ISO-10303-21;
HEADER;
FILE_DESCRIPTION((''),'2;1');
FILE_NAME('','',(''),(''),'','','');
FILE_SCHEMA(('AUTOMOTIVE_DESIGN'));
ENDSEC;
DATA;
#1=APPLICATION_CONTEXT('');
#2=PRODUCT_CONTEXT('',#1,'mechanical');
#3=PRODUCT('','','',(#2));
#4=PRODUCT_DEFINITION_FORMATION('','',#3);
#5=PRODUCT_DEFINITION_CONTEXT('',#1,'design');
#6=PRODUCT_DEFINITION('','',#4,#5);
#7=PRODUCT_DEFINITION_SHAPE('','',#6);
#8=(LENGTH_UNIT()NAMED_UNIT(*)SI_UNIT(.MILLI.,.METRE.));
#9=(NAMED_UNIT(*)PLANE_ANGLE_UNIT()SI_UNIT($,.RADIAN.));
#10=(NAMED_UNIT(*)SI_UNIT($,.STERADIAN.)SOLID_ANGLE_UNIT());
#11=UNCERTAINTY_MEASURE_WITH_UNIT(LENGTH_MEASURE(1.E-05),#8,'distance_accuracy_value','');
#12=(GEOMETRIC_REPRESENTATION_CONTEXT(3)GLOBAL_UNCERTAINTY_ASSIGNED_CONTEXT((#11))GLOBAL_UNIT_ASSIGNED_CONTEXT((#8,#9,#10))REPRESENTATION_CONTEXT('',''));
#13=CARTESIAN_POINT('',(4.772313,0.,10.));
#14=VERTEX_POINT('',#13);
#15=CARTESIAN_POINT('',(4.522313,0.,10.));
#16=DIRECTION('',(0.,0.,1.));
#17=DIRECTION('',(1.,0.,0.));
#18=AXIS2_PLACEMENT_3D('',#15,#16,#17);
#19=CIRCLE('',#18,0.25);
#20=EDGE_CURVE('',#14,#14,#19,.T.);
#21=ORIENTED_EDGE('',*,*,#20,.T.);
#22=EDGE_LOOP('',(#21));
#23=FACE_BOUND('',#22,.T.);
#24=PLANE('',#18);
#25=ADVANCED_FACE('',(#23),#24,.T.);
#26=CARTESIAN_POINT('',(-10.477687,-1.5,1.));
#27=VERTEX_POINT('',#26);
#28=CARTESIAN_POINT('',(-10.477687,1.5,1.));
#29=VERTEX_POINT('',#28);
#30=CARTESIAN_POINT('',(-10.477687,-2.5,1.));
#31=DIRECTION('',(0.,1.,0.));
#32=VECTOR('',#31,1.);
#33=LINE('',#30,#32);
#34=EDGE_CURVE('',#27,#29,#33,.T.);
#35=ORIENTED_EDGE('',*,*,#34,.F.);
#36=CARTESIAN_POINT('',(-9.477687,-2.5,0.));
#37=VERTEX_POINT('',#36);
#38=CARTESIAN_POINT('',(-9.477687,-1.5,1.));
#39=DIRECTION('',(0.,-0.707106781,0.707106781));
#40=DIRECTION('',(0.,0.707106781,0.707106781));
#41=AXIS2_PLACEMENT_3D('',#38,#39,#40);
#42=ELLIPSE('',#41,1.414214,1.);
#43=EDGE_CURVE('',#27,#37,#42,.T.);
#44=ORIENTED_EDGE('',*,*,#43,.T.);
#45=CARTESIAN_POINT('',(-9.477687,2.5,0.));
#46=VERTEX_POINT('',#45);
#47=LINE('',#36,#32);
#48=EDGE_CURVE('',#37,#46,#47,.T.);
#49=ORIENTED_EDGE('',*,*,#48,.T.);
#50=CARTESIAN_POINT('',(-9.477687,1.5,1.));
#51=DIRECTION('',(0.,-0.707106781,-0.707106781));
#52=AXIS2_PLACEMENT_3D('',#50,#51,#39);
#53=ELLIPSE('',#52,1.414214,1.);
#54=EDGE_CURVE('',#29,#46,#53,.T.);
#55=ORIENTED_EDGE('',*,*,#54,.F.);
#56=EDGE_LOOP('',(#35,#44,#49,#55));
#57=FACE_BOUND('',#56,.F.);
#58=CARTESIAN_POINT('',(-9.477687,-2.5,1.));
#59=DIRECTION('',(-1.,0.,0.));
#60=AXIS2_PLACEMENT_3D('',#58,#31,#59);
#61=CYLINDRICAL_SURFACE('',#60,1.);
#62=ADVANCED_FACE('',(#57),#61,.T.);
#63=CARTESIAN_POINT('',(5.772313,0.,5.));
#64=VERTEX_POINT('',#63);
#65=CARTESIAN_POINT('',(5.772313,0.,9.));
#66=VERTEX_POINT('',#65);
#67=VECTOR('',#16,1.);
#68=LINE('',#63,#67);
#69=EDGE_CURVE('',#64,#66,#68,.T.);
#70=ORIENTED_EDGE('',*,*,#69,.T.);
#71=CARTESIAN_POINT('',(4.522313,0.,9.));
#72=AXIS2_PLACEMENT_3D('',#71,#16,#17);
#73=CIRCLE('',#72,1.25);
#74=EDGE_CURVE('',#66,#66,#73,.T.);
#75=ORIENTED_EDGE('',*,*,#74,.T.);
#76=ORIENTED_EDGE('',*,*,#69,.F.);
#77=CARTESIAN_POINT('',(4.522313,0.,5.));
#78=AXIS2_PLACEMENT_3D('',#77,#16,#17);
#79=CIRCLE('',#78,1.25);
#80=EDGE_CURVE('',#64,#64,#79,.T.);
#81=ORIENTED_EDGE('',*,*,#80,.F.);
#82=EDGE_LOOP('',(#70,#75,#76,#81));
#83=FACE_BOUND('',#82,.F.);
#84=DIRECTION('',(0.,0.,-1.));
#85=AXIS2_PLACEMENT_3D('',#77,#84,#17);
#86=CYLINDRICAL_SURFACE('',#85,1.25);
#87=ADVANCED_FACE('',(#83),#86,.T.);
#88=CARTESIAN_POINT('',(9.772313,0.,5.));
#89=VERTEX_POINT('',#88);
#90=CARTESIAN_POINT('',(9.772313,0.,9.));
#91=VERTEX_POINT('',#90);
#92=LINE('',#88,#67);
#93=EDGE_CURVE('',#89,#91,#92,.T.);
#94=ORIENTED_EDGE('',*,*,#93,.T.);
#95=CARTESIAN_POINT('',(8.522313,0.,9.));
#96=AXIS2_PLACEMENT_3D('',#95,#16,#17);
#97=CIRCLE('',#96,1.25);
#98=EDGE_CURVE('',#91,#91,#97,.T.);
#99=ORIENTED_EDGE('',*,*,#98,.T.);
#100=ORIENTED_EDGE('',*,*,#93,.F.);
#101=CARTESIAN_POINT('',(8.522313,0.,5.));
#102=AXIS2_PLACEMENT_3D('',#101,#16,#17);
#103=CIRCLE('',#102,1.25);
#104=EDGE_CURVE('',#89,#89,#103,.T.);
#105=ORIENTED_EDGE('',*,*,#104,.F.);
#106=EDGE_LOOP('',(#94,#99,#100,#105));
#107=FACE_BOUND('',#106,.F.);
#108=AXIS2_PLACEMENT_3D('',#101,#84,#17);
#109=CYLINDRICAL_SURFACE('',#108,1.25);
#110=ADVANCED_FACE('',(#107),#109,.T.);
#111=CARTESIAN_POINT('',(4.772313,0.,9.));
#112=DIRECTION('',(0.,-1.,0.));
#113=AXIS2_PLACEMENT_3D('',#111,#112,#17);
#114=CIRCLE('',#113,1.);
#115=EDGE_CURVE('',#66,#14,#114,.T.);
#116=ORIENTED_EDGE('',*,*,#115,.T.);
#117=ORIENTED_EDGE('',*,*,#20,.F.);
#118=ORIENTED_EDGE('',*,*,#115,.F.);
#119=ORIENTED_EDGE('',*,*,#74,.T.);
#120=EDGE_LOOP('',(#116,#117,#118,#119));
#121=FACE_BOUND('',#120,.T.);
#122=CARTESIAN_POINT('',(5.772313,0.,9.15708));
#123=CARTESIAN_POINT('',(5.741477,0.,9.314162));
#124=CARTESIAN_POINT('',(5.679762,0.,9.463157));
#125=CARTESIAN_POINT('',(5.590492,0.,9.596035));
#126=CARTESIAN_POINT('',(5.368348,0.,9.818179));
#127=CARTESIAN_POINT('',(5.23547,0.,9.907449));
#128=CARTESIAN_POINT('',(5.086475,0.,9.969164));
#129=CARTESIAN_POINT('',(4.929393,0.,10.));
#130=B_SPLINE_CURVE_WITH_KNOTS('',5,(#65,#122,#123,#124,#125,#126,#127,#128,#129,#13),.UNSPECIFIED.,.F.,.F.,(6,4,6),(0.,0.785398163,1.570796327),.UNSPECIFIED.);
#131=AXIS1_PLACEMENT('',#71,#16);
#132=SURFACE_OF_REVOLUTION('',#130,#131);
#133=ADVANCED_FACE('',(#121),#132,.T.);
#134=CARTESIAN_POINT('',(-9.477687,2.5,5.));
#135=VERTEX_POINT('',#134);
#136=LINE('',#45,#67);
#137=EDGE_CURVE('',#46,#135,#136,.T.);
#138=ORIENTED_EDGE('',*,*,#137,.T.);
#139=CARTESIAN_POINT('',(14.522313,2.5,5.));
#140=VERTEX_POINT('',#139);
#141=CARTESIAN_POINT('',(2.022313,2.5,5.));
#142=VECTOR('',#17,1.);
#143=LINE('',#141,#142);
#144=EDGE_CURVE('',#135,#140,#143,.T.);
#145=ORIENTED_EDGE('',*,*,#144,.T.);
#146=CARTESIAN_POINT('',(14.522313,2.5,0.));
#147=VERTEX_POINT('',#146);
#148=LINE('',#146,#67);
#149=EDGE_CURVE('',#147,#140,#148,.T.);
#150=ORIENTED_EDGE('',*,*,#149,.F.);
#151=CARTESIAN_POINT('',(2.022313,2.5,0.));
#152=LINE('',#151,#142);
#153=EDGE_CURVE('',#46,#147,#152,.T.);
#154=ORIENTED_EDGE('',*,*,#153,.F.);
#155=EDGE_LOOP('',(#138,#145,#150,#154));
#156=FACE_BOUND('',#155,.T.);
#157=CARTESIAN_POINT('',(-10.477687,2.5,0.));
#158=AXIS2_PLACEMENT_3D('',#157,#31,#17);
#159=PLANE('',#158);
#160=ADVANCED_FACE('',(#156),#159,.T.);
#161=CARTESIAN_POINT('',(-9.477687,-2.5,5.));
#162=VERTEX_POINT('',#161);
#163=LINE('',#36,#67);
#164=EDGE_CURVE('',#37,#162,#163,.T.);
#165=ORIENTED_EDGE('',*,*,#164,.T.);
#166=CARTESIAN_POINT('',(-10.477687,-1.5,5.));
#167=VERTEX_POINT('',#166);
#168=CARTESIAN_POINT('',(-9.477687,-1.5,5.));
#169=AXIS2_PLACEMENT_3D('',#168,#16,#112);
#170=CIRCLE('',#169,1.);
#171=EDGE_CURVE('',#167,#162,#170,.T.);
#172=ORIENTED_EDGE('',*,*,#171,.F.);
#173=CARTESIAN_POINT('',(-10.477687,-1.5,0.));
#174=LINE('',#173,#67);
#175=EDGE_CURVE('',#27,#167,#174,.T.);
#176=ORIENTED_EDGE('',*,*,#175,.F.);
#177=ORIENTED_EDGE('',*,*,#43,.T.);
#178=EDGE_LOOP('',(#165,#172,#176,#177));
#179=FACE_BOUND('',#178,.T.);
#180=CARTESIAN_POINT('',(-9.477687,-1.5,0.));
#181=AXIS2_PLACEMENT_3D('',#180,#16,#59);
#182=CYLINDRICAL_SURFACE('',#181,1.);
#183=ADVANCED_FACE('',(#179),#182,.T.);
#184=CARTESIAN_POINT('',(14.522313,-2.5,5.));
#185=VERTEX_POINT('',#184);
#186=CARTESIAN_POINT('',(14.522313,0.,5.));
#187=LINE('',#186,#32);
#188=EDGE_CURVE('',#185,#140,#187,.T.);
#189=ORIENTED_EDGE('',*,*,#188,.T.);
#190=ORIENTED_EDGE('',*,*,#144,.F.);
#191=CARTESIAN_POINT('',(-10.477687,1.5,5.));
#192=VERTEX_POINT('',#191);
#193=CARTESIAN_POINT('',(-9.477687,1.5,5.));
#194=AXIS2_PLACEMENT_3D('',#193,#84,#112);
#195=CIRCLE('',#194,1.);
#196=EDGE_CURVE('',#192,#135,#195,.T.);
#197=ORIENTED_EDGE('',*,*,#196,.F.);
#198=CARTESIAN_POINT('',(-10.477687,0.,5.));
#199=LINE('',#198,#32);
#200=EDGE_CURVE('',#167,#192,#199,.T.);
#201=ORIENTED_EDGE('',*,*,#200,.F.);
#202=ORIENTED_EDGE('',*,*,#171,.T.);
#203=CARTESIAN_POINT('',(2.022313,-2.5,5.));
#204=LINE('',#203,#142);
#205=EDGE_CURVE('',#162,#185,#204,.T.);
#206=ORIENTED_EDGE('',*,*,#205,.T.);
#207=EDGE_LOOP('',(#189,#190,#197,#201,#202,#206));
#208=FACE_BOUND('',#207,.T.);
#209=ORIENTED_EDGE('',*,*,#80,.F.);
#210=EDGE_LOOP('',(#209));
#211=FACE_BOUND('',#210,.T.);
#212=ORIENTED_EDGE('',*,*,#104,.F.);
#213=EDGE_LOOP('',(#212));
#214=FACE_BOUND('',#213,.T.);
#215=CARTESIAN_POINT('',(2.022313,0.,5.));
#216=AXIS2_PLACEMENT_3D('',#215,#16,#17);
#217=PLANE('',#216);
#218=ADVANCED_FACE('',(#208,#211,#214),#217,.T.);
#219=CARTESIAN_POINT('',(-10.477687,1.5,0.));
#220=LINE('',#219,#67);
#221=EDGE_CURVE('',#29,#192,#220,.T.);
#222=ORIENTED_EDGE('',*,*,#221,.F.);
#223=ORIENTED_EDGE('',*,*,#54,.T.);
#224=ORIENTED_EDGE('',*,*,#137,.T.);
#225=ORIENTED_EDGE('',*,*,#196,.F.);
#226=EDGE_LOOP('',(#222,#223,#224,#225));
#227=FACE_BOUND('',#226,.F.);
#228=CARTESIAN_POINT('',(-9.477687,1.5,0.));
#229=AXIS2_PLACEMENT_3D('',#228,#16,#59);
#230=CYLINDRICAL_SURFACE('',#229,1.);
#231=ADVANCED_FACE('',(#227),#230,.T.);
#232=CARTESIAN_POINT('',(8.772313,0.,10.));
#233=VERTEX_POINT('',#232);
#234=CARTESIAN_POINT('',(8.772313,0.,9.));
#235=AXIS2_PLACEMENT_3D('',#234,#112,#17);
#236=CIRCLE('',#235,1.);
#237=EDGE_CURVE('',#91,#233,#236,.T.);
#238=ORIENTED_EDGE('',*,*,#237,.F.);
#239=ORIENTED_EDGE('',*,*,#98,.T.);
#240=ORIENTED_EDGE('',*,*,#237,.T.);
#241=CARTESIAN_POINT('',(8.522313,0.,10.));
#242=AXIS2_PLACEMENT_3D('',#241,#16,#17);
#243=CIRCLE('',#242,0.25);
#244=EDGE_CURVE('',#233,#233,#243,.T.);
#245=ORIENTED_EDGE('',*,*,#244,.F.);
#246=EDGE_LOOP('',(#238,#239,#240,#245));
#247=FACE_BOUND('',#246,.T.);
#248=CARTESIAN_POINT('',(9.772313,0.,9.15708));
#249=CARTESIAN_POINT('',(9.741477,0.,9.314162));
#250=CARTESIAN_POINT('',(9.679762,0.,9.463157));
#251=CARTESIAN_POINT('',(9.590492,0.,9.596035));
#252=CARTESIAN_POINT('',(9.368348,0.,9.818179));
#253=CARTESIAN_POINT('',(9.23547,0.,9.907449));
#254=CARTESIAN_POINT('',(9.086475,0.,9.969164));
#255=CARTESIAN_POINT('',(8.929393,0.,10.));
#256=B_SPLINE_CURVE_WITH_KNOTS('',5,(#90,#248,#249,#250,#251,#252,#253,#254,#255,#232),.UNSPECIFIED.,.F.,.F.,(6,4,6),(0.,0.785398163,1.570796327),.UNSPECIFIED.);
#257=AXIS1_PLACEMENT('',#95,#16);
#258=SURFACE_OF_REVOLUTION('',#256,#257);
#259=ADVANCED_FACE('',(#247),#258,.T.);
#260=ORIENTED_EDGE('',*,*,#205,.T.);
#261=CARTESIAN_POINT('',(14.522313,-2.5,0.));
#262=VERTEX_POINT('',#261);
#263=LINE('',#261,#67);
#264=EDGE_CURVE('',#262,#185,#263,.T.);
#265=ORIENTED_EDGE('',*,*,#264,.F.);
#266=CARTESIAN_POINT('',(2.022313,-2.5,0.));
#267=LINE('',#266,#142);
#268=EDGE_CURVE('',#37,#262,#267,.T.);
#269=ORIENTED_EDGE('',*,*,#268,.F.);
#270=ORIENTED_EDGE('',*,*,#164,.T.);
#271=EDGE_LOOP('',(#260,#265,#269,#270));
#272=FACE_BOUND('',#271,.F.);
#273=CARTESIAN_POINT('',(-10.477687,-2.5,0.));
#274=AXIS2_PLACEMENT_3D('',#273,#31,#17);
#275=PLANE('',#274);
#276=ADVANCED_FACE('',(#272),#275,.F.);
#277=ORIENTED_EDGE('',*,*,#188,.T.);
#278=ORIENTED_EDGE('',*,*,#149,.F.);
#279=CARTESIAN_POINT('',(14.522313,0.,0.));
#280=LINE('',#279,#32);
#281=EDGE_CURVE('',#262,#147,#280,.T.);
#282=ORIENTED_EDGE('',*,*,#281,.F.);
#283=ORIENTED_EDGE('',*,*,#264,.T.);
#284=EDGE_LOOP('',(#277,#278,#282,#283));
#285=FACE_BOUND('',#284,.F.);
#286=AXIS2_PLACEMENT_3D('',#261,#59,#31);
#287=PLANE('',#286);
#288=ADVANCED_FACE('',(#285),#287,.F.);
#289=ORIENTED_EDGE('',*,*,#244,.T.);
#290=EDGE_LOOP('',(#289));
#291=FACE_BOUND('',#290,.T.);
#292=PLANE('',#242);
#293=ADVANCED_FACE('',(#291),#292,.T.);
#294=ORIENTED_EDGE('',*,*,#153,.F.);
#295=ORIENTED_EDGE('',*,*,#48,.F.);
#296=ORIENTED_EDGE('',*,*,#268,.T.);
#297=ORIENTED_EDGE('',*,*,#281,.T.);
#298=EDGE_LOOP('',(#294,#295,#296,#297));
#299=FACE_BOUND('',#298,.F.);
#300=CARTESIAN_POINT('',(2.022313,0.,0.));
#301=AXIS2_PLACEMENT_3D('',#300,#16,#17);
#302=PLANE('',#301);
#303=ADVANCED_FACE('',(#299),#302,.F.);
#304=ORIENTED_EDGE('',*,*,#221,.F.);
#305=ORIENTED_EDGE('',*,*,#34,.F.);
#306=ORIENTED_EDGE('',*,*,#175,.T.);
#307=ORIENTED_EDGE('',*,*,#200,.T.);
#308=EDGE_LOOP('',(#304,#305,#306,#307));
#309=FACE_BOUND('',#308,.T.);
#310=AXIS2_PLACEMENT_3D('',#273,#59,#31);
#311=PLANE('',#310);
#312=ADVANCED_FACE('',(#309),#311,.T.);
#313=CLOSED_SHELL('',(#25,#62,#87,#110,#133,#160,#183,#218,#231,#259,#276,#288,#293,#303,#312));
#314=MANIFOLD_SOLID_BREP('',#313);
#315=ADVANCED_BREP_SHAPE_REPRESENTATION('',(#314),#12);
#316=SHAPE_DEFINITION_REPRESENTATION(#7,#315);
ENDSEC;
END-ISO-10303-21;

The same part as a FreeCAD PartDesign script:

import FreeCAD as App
import Part
import Sketcher


def edges_at(feature, points):
    """Names of the edges that pass closest to the given points."""
    edges = feature.Shape.Edges
    near = lambda p: min(range(len(edges)), key=lambda i: edges[i].distToShape(Part.Vertex(*p))[0])
    return sorted({f"Edge{near(p) + 1}" for p in points})


def add_polygon(sketch, points):
    """Adds a closed chain of lines whose ends are joined by coincident constraints."""
    first, n = sketch.GeometryCount, len(points)
    for a, b in zip(points, points[1:] + points[:1]):
        sketch.addGeometry(Part.LineSegment(App.Vector(*a, 0), App.Vector(*b, 0)), False)
    for i in range(n):
        sketch.addConstraint(Sketcher.Constraint("Coincident", first + i, 2, first + (i + 1) % n, 1))

doc = App.newDocument("Part")
body = doc.addObject("PartDesign::Body", "Body")

# Sketch on XY plane
sketch1 = doc.addObject("Sketcher::SketchObject", "Sketch")
body.addObject(sketch1)
sketch1.AttachmentSupport = (doc.XY_Plane, [""])
sketch1.MapMode = "FlatFace"
add_polygon(sketch1, [(-10.477687, 2.5), (-10.477687, -2.5), (14.522313, -2.5), (14.522313, 2.5)])  # lines 0-3
sketch1.addConstraint([
    Sketcher.Constraint("Vertical", 0),
    Sketcher.Constraint("Horizontal", 1),
    Sketcher.Constraint("Vertical", 2),
    Sketcher.Constraint("Horizontal", 3),
    Sketcher.Constraint("DistanceX", 1, 1, 1, 2, 25.0),
    Sketcher.Constraint("DistanceY", 0, 2, 0, 1, 5.0),
    Sketcher.Constraint("DistanceY", 0, 2, -1, 1, 2.5),
    Sketcher.Constraint("DistanceX", 0, 2, -1, 1, 10.477687),
])
pad1 = doc.addObject("PartDesign::Pad", "Pad")
body.addObject(pad1)
pad1.Profile = sketch1
pad1.Length = 5

# Sketch on XY plane
sketch2 = doc.addObject("Sketcher::SketchObject", "Sketch001")
body.addObject(sketch2)
sketch2.AttachmentSupport = (doc.XY_Plane, [""])
sketch2.MapMode = "FlatFace"
sketch2.AttachmentOffset = App.Placement(App.Vector(0, 0, 5), App.Rotation())
sketch2.addGeometry([
    Part.Circle(App.Vector(4.522313, 0, 0), App.Vector(0, 0, 1), 1.25),
    Part.Circle(App.Vector(8.522313, 0, 0), App.Vector(0, 0, 1), 1.25),
], False)
sketch2.addConstraint([
    Sketcher.Constraint("Equal", 0, 1),
    Sketcher.Constraint("PointOnObject", 0, 3, -1),
    Sketcher.Constraint("PointOnObject", 1, 3, -1),
    Sketcher.Constraint("Diameter", 0, 2.5),
    Sketcher.Constraint("DistanceX", 0, 3, 1, 3, 4.0),
    Sketcher.Constraint("DistanceX", -1, 1, 0, 3, 4.522313),
])
pad2 = doc.addObject("PartDesign::Pad", "Pad001")
body.addObject(pad2)
pad2.Profile = sketch2
pad2.Length = 5
doc.recompute()

fillet = doc.addObject("PartDesign::Fillet", "Fillet")
body.addObject(fillet)
fillet.Base = (pad2, edges_at(pad2, [
    (-10.478, -2.5, 2.5),
    (-10.478, 2.5, 2.5),
    (3.272, 0, 10),
    (7.272, 0, 10),
    (-10.478, 0, 0),
]))
fillet.Radius = 1

doc.recompute()
